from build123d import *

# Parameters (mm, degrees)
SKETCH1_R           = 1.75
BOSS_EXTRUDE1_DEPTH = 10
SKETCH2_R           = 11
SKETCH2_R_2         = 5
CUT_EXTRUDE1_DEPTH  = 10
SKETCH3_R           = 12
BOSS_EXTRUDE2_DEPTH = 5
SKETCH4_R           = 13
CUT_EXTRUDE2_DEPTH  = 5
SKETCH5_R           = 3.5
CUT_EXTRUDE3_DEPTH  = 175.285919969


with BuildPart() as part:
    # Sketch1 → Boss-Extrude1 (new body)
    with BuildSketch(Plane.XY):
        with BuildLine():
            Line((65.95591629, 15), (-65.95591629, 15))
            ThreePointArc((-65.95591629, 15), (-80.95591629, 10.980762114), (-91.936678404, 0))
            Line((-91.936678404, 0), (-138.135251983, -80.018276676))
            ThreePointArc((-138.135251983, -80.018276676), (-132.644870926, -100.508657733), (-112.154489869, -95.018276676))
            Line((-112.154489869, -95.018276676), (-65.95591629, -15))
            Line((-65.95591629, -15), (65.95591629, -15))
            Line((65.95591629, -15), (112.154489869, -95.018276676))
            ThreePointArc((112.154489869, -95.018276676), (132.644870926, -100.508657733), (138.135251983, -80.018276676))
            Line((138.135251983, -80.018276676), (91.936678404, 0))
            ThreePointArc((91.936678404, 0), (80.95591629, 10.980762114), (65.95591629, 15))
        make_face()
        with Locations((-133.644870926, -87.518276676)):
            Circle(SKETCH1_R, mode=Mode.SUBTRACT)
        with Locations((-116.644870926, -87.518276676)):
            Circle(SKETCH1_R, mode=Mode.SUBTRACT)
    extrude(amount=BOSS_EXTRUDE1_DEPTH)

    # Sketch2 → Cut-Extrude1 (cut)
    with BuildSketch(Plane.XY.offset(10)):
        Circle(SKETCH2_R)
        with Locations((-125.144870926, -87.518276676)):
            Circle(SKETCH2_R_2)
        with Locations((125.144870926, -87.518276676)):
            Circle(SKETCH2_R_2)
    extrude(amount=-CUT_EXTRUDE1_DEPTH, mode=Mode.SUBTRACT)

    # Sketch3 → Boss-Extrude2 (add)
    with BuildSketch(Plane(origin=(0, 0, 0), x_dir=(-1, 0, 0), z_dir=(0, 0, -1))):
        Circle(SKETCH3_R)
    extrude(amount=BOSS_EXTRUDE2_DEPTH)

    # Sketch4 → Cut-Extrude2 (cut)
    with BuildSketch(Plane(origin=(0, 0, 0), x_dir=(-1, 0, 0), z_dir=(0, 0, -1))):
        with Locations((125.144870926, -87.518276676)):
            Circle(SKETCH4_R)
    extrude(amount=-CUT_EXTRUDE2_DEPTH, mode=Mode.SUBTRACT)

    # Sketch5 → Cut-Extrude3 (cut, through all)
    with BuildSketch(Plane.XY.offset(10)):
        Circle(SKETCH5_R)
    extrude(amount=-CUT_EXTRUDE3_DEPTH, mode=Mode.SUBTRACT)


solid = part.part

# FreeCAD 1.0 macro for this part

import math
import FreeCAD as App
import Part
import Sketcher

V = App.Vector
Q = App.Units.Quantity

doc = App.newDocument("Part")
body = doc.addObject("PartDesign::Body", "Body")

# Sketch on XY plane
sketch1 = body.newObject("Sketcher::SketchObject", "Sketch")
sketch1.AttachmentSupport = (doc.getObject("XY_Plane"), [""])
sketch1.MapMode = "FlatFace"
sketch1.addGeometry([
    Part.LineSegment(V(66, 15, 0), V(-66, 15, 0)),  # 0
    Part.ArcOfCircle(Part.Circle(V(-66, -15, 0), V(0, 0, 1), 30), math.radians(90), math.radians(150)),  # 1
    Part.LineSegment(V(-91.9, 0, 0), V(-138.1, -80, 0)),  # 2
    Part.ArcOfCircle(Part.Circle(V(-125.1, -87.5, 0), V(0, 0, 1), 15), math.radians(150), math.radians(330)),  # 3
    Part.LineSegment(V(-112.2, -95, 0), V(-66, -15, 0)),  # 4
    Part.LineSegment(V(-66, -15, 0), V(66, -15, 0)),  # 5
    Part.LineSegment(V(66, -15, 0), V(112.2, -95, 0)),  # 6
    Part.ArcOfCircle(Part.Circle(V(125.1, -87.5, 0), V(0, 0, 1), 15), math.radians(-150), math.radians(30)),  # 7
    Part.LineSegment(V(138.1, -80, 0), V(91.9, 0, 0)),  # 8
    Part.ArcOfCircle(Part.Circle(V(66, -15, 0), V(0, 0, 1), 30), math.radians(30), math.radians(90)),  # 9
    Part.Circle(V(-133.6, -87.5, 0), V(0, 0, 1), 1.8),  # 10
    Part.Circle(V(-116.6, -87.5, 0), V(0, 0, 1), 1.8),  # 11
], False)
sketch1.addConstraint([
    Sketcher.Constraint("Tangent", 0, 2, 1, 1),
    Sketcher.Constraint("Tangent", 1, 2, 2, 1),
    Sketcher.Constraint("Tangent", 2, 2, 3, 1),
    Sketcher.Constraint("Tangent", 3, 2, 4, 1),
    Sketcher.Constraint("Coincident", 4, 2, 5, 1),
    Sketcher.Constraint("Coincident", 5, 2, 6, 1),
    Sketcher.Constraint("Tangent", 6, 2, 7, 1),
    Sketcher.Constraint("Tangent", 7, 2, 8, 1),
    Sketcher.Constraint("Tangent", 8, 2, 9, 1),
    Sketcher.Constraint("Tangent", 9, 2, 0, 1),
    Sketcher.Constraint("Horizontal", 0),
    Sketcher.Constraint("Horizontal", 5),
    Sketcher.Constraint("Coincident", 4, 2, 1, 3),
    Sketcher.Constraint("Coincident", 5, 2, 9, 3),
    Sketcher.Constraint("Equal", 3, 7),
    Sketcher.Constraint("Equal", 10, 11),
    Sketcher.Constraint("Symmetric", 0, 2, 5, 2, -1, 1),
    Sketcher.Constraint("Symmetric", 1, 2, 8, 2, -1, 1),
    Sketcher.Constraint("Parallel", 2, 4),
    Sketcher.Constraint("Horizontal", 3, 3, 7, 3),
    Sketcher.Constraint("Horizontal", 7, 3, 10, 3),
    Sketcher.Constraint("Horizontal", 10, 3, 11, 3),
    Sketcher.Constraint("Radius", 1, Q("30 mm")),
    Sketcher.Constraint("Diameter", 10, Q("3.5 mm")),
    Sketcher.Constraint("DistanceX", 10, 3, 11, 3, Q("17 mm")),
    Sketcher.Constraint("DistanceX", 10, 3, 3, 3, Q("8.5 mm")),
    Sketcher.Constraint("DistanceX", 0, 2, 0, 1, Q("131.911833 mm")),
    Sketcher.Constraint("DistanceX", 3, 3, -1, 1, Q("125.144871 mm")),
])
pad1 = body.newObject("PartDesign::Pad", "Pad")
pad1.Profile = sketch1
pad1.Length = 10

# Sketch on XY plane
sketch2 = body.newObject("Sketcher::SketchObject", "Sketch001")
sketch2.AttachmentSupport = (doc.getObject("XY_Plane"), [""])
sketch2.MapMode = "FlatFace"
sketch2.AttachmentOffset = App.Placement(V(0, 0, 10), App.Rotation())
sketch2.addGeometry([
    Part.Circle(V(0, 0, 0), V(0, 0, 1), 11),
    Part.Circle(V(-125, -88, 0), V(0, 0, 1), 5),
    Part.Circle(V(125, -88, 0), V(0, 0, 1), 5),
], False)
sketch2.addConstraint([
    Sketcher.Constraint("Coincident", 0, 3, -1, 1),
    Sketcher.Constraint("Equal", 1, 2),
    Sketcher.Constraint("Symmetric", 1, 3, 2, 3, -2),
    Sketcher.Constraint("Diameter", 0, Q("22 mm")),
    Sketcher.Constraint("Diameter", 1, Q("10 mm")),
    Sketcher.Constraint("DistanceX", 1, 3, -1, 1, Q("125.144871 mm")),
    Sketcher.Constraint("DistanceY", 1, 3, -1, 1, Q("87.518277 mm")),
])
pocket1 = body.newObject("PartDesign::Pocket", "Pocket")
pocket1.Profile = sketch2
pocket1.Length = 10

# Sketch on XY plane
sketch3 = body.newObject("Sketcher::SketchObject", "Sketch002")
sketch3.AttachmentSupport = (doc.getObject("XY_Plane"), [""])
sketch3.MapMode = "FlatFace"
sketch3.addGeometry(Part.Circle(V(0, 0, 0), V(0, 0, 1), 12), False)
sketch3.addConstraint([
    Sketcher.Constraint("Coincident", 0, 3, -1, 1),
    Sketcher.Constraint("Diameter", 0, Q("24 mm")),
])
pad2 = body.newObject("PartDesign::Pad", "Pad001")
pad2.Profile = sketch3
pad2.Length = 5
pad2.Reversed = True

# Sketch on XY plane
sketch4 = body.newObject("Sketcher::SketchObject", "Sketch003")
sketch4.AttachmentSupport = (doc.getObject("XY_Plane"), [""])
sketch4.MapMode = "FlatFace"
sketch4.addGeometry(Part.Circle(V(-125, -88, 0), V(0, 0, 1), 13), False)
sketch4.addConstraint([
    Sketcher.Constraint("Diameter", 0, Q("26 mm")),
    Sketcher.Constraint("DistanceX", 0, 3, -1, 1, Q("125.144871 mm")),
    Sketcher.Constraint("DistanceY", 0, 3, -1, 1, Q("87.518277 mm")),
])
pocket2 = body.newObject("PartDesign::Pocket", "Pocket001")
pocket2.Profile = sketch4
pocket2.Length = 5
pocket2.Reversed = True

# Sketch on XY plane
sketch5 = body.newObject("Sketcher::SketchObject", "Sketch004")
sketch5.AttachmentSupport = (doc.getObject("XY_Plane"), [""])
sketch5.MapMode = "FlatFace"
sketch5.AttachmentOffset = App.Placement(V(0, 0, 10), App.Rotation())
sketch5.addGeometry(Part.Circle(V(0, 0, 0), V(0, 0, 1), 3.5), False)
sketch5.addConstraint([
    Sketcher.Constraint("Coincident", 0, 3, -1, 1),
    Sketcher.Constraint("Diameter", 0, Q("7 mm")),
])
pocket3 = body.newObject("PartDesign::Pocket", "Pocket002")
pocket3.Profile = sketch5
pocket3.Type = "ThroughAll"

doc.recompute()
